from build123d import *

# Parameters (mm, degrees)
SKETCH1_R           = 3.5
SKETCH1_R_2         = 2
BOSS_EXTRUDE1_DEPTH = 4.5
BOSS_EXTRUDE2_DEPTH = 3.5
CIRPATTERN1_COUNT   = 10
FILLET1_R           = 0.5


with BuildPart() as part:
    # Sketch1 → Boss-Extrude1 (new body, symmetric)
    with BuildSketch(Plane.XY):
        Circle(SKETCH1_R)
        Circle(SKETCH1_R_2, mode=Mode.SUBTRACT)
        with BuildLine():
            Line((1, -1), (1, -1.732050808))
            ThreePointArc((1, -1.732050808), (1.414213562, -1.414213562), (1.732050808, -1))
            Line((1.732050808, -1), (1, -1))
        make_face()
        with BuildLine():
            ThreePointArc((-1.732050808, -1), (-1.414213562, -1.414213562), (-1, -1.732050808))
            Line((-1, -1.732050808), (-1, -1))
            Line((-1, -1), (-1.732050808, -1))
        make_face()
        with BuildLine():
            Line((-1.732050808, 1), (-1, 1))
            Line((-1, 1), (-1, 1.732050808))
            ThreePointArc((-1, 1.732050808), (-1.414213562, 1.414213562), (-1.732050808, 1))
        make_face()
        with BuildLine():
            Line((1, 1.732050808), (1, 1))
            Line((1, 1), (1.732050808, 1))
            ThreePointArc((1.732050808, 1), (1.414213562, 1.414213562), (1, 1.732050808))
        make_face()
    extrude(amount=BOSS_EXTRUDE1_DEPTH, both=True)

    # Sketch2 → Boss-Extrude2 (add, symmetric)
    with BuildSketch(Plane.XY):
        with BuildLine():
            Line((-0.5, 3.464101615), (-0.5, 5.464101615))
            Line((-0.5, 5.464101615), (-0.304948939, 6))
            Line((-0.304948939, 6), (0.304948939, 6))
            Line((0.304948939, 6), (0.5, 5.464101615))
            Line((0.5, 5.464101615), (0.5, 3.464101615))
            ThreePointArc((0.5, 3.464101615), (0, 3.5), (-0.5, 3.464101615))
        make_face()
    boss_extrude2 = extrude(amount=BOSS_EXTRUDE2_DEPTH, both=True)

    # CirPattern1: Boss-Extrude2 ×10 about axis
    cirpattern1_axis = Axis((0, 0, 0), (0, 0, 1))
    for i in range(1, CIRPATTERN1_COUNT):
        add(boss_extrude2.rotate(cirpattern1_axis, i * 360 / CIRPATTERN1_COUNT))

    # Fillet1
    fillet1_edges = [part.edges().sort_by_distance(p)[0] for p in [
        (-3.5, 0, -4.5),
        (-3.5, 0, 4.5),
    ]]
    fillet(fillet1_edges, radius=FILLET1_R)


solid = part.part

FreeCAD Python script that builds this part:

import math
import FreeCAD as App
import Part
import Sketcher
from FreeCAD import Vector
Q = App.Units.Quantity


def edges_at(feature, points):
    """Names of the edges that pass closest to the given points."""
    edges = feature.Shape.Edges
    near = lambda p: min(range(len(edges)), key=lambda i: edges[i].distToShape(Part.Vertex(*p))[0])
    return sorted({f"Edge{near(p) + 1}" for p in points})

doc = App.newDocument("Part")
body = doc.addObject("PartDesign::Body", "Body")

# Sketch on XY plane
sketch1 = body.newObject("Sketcher::SketchObject", "Sketch")
sketch1.AttachmentSupport = (doc.getObject("XY_Plane"), [""])
sketch1.MapMode = "FlatFace"
sketch1.addGeometry([
    Part.Circle(Vector(0, 0, 0), Vector(0, 0, 1), 3.5),  # 0
    Part.ArcOfCircle(Part.Circle(Vector(0, 0, 0), Vector(0, 0, 1), 2), math.radians(-120), math.radians(-60)),  # 1
    Part.LineSegment(Vector(-1, -1.7, 0), Vector(-1, -1, 0)),  # 2
    Part.LineSegment(Vector(-1, -1, 0), Vector(-1.7, -1, 0)),  # 3
    Part.ArcOfCircle(Part.Circle(Vector(0, 0, 0), Vector(0, 0, 1), 2), math.radians(150), math.radians(210)),  # 4
    Part.LineSegment(Vector(-1.7, 1, 0), Vector(-1, 1, 0)),  # 5
    Part.LineSegment(Vector(-1, 1, 0), Vector(-1, 1.7, 0)),  # 6
    Part.ArcOfCircle(Part.Circle(Vector(0, 0, 0), Vector(0, 0, 1), 2), math.radians(60), math.radians(120)),  # 7
    Part.LineSegment(Vector(1, 1.7, 0), Vector(1, 1, 0)),  # 8
    Part.LineSegment(Vector(1, 1, 0), Vector(1.7, 1, 0)),  # 9
    Part.ArcOfCircle(Part.Circle(Vector(0, 0, 0), Vector(0, 0, 1), 2), math.radians(-30), math.radians(30)),  # 10
    Part.LineSegment(Vector(1.7, -1, 0), Vector(1, -1, 0)),  # 11
    Part.LineSegment(Vector(1, -1, 0), Vector(1, -1.7, 0)),  # 12
], False)
sketch1.addConstraint([
    Sketcher.Constraint("Coincident", 1, 1, 2, 1),
    Sketcher.Constraint("Coincident", 2, 2, 3, 1),
    Sketcher.Constraint("Coincident", 3, 2, 4, 2),
    Sketcher.Constraint("Coincident", 4, 1, 5, 1),
    Sketcher.Constraint("Coincident", 5, 2, 6, 1),
    Sketcher.Constraint("Coincident", 6, 2, 7, 2),
    Sketcher.Constraint("Coincident", 7, 1, 8, 1),
    Sketcher.Constraint("Coincident", 8, 2, 9, 1),
    Sketcher.Constraint("Coincident", 9, 2, 10, 2),
    Sketcher.Constraint("Coincident", 10, 1, 11, 1),
    Sketcher.Constraint("Coincident", 11, 2, 12, 1),
    Sketcher.Constraint("Coincident", 12, 2, 1, 2),
    Sketcher.Constraint("Vertical", 2),
    Sketcher.Constraint("Horizontal", 3),
    Sketcher.Constraint("Horizontal", 5),
    Sketcher.Constraint("Vertical", 6),
    Sketcher.Constraint("Vertical", 8),
    Sketcher.Constraint("Horizontal", 9),
    Sketcher.Constraint("Horizontal", 11),
    Sketcher.Constraint("Vertical", 12),
    Sketcher.Constraint("Coincident", 0, 3, -1, 1),
    Sketcher.Constraint("Coincident", 1, 3, -1, 1),
    Sketcher.Constraint("Coincident", 4, 3, -1, 1),
    Sketcher.Constraint("Coincident", 7, 3, -1, 1),
    Sketcher.Constraint("Coincident", 10, 3, -1, 1),
    Sketcher.Constraint("Equal", 1, 4),
    Sketcher.Constraint("Equal", 4, 7),
    Sketcher.Constraint("Equal", 7, 10),
    Sketcher.Constraint("Symmetric", 2, 2, 8, 2, -1, 1),
    Sketcher.Constraint("Symmetric", 5, 2, 11, 2, -1, 1),
    Sketcher.Constraint("Symmetric", 5, 2, 8, 2, -2),
    Sketcher.Constraint("Equal", 11, 2),
    Sketcher.Constraint("Diameter", 0, 7.0),
    Sketcher.Constraint("Radius", 1, 2.0),
    Sketcher.Constraint("DistanceX", 1, 1, -1, 1, 1.0),
])
pad1 = body.newObject("PartDesign::Pad", "Pad")
pad1.Profile = sketch1
pad1.Length = 9
pad1.Midplane = True

# Sketch on XY plane
sketch2 = body.newObject("Sketcher::SketchObject", "Sketch001")
sketch2.AttachmentSupport = (doc.getObject("XY_Plane"), [""])
sketch2.MapMode = "FlatFace"
sketch2.addGeometry([
    Part.LineSegment(Vector(-0.5, 5.5, 0), Vector(-0.5, 3.5, 0)),  # 0
    Part.ArcOfCircle(Part.Circle(Vector(0, 0, 0), Vector(0, 0, 1), 3.5), math.radians(81.79), math.radians(98.21)),  # 1
    Part.LineSegment(Vector(0.5, 3.5, 0), Vector(0.5, 5.5, 0)),  # 2
    Part.LineSegment(Vector(0.5, 5.5, 0), Vector(0.3, 6, 0)),  # 3
    Part.LineSegment(Vector(0.3, 6, 0), Vector(-0.3, 6, 0)),  # 4
    Part.LineSegment(Vector(-0.3, 6, 0), Vector(-0.5, 5.5, 0)),  # 5
], False)
sketch2.addConstraint([
    Sketcher.Constraint("Coincident", 0, 2, 1, 2),
    Sketcher.Constraint("Coincident", 1, 1, 2, 1),
    Sketcher.Constraint("Coincident", 2, 2, 3, 1),
    Sketcher.Constraint("Coincident", 3, 2, 4, 1),
    Sketcher.Constraint("Coincident", 4, 2, 5, 1),
    Sketcher.Constraint("Coincident", 5, 2, 0, 1),
    Sketcher.Constraint("Vertical", 0),
    Sketcher.Constraint("Vertical", 2),
    Sketcher.Constraint("Horizontal", 4),
    Sketcher.Constraint("Coincident", 1, 3, -1, 1),
    Sketcher.Constraint("Symmetric", 2, 2, 5, 2, -2),
    Sketcher.Constraint("Equal", 3, 5),
    Sketcher.Constraint("Radius", 1, 3.5),
    Sketcher.Constraint("DistanceY", 0, 2, 0, 1, 2.0),
    Sketcher.Constraint("Angle", 3, Q("110 deg")),
    Sketcher.Constraint("DistanceY", -1, 1, 3, 2, 6.0),
    Sketcher.Constraint("DistanceX", 0, 2, 1, 1, 1.0),
])
pad2 = body.newObject("PartDesign::Pad", "Pad001")
pad2.Profile = sketch2
pad2.Length = 7
pad2.Midplane = True
doc.recompute()

polarpattern = body.newObject("PartDesign::PolarPattern", "PolarPattern")
polarpattern.Originals = [pad2]
polarpattern.Axis = (doc.getObject("Z_Axis"), [""])
polarpattern.Angle = 360
polarpattern.Occurrences = 10
body.Tip = polarpattern
doc.recompute()

fillet = body.newObject("PartDesign::Fillet", "Fillet")
fillet.Base = (polarpattern, edges_at(polarpattern, [(-3.5, 0, -4.5), (-3.5, 0, 4.5)]))
fillet.Radius = 0.5

doc.recompute()
